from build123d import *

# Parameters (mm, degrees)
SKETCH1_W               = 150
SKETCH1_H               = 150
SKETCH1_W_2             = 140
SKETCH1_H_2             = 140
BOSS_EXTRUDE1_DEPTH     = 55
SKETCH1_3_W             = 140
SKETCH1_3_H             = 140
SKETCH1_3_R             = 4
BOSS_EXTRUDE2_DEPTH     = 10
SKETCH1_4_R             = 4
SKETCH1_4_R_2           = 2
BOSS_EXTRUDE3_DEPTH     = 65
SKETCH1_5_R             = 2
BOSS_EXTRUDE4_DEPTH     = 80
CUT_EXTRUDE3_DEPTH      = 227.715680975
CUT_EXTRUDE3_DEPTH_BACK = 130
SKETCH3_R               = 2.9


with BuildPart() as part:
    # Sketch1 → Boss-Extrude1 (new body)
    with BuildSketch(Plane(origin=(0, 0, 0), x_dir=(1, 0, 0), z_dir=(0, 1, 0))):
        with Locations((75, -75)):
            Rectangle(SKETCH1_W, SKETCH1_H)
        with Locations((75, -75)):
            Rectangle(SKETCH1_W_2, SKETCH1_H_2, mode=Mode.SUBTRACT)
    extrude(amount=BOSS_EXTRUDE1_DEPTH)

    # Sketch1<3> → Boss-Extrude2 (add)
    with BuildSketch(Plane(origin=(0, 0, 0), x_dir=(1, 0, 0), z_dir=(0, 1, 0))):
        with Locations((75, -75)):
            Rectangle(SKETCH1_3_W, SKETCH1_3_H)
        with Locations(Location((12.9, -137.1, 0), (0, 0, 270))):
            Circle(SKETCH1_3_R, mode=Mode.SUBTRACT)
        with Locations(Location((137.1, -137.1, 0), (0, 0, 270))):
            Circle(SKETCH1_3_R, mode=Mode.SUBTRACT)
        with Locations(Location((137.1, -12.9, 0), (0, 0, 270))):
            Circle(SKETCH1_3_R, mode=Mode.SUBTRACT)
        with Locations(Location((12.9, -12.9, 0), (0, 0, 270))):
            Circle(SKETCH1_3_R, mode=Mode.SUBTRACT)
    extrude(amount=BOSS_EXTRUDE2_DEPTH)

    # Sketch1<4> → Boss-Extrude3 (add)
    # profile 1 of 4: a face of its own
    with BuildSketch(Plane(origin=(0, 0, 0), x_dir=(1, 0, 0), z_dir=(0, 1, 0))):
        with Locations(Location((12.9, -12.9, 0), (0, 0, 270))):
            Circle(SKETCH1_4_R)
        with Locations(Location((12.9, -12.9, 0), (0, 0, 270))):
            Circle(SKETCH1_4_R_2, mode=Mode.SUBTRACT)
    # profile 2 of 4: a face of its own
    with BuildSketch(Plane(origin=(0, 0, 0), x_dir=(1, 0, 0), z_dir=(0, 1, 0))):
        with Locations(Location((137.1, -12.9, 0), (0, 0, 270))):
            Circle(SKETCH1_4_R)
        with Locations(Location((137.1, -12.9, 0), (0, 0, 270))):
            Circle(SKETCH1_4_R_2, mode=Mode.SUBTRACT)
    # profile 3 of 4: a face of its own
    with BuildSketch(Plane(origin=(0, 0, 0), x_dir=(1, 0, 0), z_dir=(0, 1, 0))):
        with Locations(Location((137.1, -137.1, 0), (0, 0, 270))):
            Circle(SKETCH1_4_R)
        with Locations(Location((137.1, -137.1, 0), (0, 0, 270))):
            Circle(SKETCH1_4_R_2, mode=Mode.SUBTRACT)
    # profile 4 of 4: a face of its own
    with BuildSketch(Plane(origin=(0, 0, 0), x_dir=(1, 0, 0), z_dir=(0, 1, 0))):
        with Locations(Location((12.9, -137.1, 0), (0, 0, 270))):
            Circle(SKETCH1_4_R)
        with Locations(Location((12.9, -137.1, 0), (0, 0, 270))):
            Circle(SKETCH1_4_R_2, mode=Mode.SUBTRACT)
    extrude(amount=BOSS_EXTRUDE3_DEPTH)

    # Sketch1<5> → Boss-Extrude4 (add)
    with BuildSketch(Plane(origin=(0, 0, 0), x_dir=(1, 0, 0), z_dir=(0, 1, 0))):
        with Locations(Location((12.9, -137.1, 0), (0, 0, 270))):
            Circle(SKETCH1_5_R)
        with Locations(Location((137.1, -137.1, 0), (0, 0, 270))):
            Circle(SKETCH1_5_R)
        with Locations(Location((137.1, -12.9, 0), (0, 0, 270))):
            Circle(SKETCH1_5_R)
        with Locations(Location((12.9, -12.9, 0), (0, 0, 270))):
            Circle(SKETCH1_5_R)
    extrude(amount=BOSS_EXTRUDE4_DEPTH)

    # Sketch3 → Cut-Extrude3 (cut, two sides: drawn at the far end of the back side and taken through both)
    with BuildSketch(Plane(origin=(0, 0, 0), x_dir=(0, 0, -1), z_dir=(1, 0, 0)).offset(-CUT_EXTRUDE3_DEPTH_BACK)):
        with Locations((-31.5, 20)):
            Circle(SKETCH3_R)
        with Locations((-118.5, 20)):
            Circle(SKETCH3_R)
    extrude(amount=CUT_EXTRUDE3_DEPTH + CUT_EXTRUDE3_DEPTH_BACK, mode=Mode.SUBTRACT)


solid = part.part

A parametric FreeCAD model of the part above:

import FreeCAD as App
import Part
import Sketcher

doc = App.newDocument("Part")
body = doc.addObject("PartDesign::Body", "Body")

# Sketch on XZ plane
sketch1 = doc.addObject("Sketcher::SketchObject", "Sketch")
body.addObject(sketch1)
sketch1.AttachmentSupport = (doc.XZ_Plane, [""])
sketch1.MapMode = "FlatFace"
sketch1.addGeometry(Part.LineSegment(App.Vector(0, 0, 0), App.Vector(0, 150, 0)), False)
sketch1.addGeometry(Part.LineSegment(App.Vector(0, 150, 0), App.Vector(150, 150, 0)), False)
sketch1.addGeometry(Part.LineSegment(App.Vector(150, 150, 0), App.Vector(150, 0, 0)), False)
sketch1.addGeometry(Part.LineSegment(App.Vector(150, 0, 0), App.Vector(0, 0, 0)), False)
sketch1.addGeometry(Part.LineSegment(App.Vector(145, 145, 0), App.Vector(5, 145, 0)), False)
sketch1.addGeometry(Part.LineSegment(App.Vector(5, 145, 0), App.Vector(5, 5, 0)), False)
sketch1.addGeometry(Part.LineSegment(App.Vector(5, 5, 0), App.Vector(145, 5, 0)), False)
sketch1.addGeometry(Part.LineSegment(App.Vector(145, 5, 0), App.Vector(145, 145, 0)), False)
sketch1.addConstraint(Sketcher.Constraint("Coincident", 0, 2, 1, 1))
sketch1.addConstraint(Sketcher.Constraint("Coincident", 1, 2, 2, 1))
sketch1.addConstraint(Sketcher.Constraint("Coincident", 2, 2, 3, 1))
sketch1.addConstraint(Sketcher.Constraint("Coincident", 3, 2, 0, 1))
sketch1.addConstraint(Sketcher.Constraint("Coincident", 4, 2, 5, 1))
sketch1.addConstraint(Sketcher.Constraint("Coincident", 5, 2, 6, 1))
sketch1.addConstraint(Sketcher.Constraint("Coincident", 6, 2, 7, 1))
sketch1.addConstraint(Sketcher.Constraint("Coincident", 7, 2, 4, 1))
sketch1.addConstraint(Sketcher.Constraint("Vertical", 0))
sketch1.addConstraint(Sketcher.Constraint("Horizontal", 1))
sketch1.addConstraint(Sketcher.Constraint("Vertical", 2))
sketch1.addConstraint(Sketcher.Constraint("Horizontal", 3))
sketch1.addConstraint(Sketcher.Constraint("Horizontal", 4))
sketch1.addConstraint(Sketcher.Constraint("Vertical", 5))
sketch1.addConstraint(Sketcher.Constraint("Horizontal", 6))
sketch1.addConstraint(Sketcher.Constraint("Vertical", 7))
sketch1.addConstraint(Sketcher.Constraint("Coincident", 3, 2, -1, 1))
sketch1.addConstraint(Sketcher.Constraint("Equal", 3, 0))
sketch1.addConstraint(Sketcher.Constraint("Equal", 6, 5))
sketch1.addConstraint(Sketcher.Constraint("DistanceX", 1, 1, 1, 2, 150.0))
sketch1.addConstraint(Sketcher.Constraint("DistanceX", 4, 2, 4, 1, 140.0))
sketch1.addConstraint(Sketcher.Constraint("DistanceX", -1, 1, 4, 2, 5.0))
sketch1.addConstraint(Sketcher.Constraint("DistanceY", -1, 1, 4, 2, 145.0))
pad1 = doc.addObject("PartDesign::Pad", "Pad")
body.addObject(pad1)
pad1.Profile = sketch1
pad1.Length = 55
pad1.Reversed = True

# Sketch on XZ plane
sketch2 = doc.addObject("Sketcher::SketchObject", "Sketch001")
body.addObject(sketch2)
sketch2.AttachmentSupport = (doc.XZ_Plane, [""])
sketch2.MapMode = "FlatFace"
sketch2.addGeometry(Part.LineSegment(App.Vector(5, 5, 0), App.Vector(5, 145, 0)), False)
sketch2.addGeometry(Part.LineSegment(App.Vector(5, 145, 0), App.Vector(145, 145, 0)), False)
sketch2.addGeometry(Part.LineSegment(App.Vector(145, 145, 0), App.Vector(145, 5, 0)), False)
sketch2.addGeometry(Part.LineSegment(App.Vector(145, 5, 0), App.Vector(5, 5, 0)), False)
sketch2.addGeometry(Part.Circle(App.Vector(12.9, 137.1, 0), App.Vector(0, 0, 1), 4), False)
sketch2.addGeometry(Part.Circle(App.Vector(137.1, 137.1, 0), App.Vector(0, 0, 1), 4), False)
sketch2.addGeometry(Part.Circle(App.Vector(12.9, 12.9, 0), App.Vector(0, 0, 1), 4), False)
sketch2.addGeometry(Part.Circle(App.Vector(137.1, 12.9, 0), App.Vector(0, 0, 1), 4), False)
sketch2.addConstraint(Sketcher.Constraint("Coincident", 0, 2, 1, 1))
sketch2.addConstraint(Sketcher.Constraint("Coincident", 1, 2, 2, 1))
sketch2.addConstraint(Sketcher.Constraint("Coincident", 2, 2, 3, 1))
sketch2.addConstraint(Sketcher.Constraint("Coincident", 3, 2, 0, 1))
sketch2.addConstraint(Sketcher.Constraint("Vertical", 0))
sketch2.addConstraint(Sketcher.Constraint("Horizontal", 1))
sketch2.addConstraint(Sketcher.Constraint("Vertical", 2))
sketch2.addConstraint(Sketcher.Constraint("Horizontal", 3))
sketch2.addConstraint(Sketcher.Constraint("Equal", 4, 5))
sketch2.addConstraint(Sketcher.Constraint("Equal", 5, 6))
sketch2.addConstraint(Sketcher.Constraint("Equal", 6, 7))
sketch2.addConstraint(Sketcher.Constraint("Horizontal", 4, 3, 5, 3))
sketch2.addConstraint(Sketcher.Constraint("Horizontal", 6, 3, 7, 3))
sketch2.addConstraint(Sketcher.Constraint("Vertical", 4, 3, 6, 3))
sketch2.addConstraint(Sketcher.Constraint("Vertical", 5, 3, 7, 3))
sketch2.addConstraint(Sketcher.Constraint("Equal", 3, 0))
sketch2.addConstraint(Sketcher.Constraint("Diameter", 4, 8.0))
sketch2.addConstraint(Sketcher.Constraint("DistanceX", 1, 1, 1, 2, 140.0))
sketch2.addConstraint(Sketcher.Constraint("DistanceX", -1, 1, 0, 2, 5.0))
sketch2.addConstraint(Sketcher.Constraint("DistanceY", -1, 1, 0, 2, 145.0))
sketch2.addConstraint(Sketcher.Constraint("DistanceX", -1, 1, 4, 3, 12.9))
sketch2.addConstraint(Sketcher.Constraint("DistanceY", -1, 1, 4, 3, 137.1))
sketch2.addConstraint(Sketcher.Constraint("DistanceX", -1, 1, 5, 3, 137.1))
sketch2.addConstraint(Sketcher.Constraint("DistanceY", -1, 1, 6, 3, 12.9))
pad2 = doc.addObject("PartDesign::Pad", "Pad001")
body.addObject(pad2)
pad2.Profile = sketch2
pad2.Length = 10
pad2.Reversed = True

# Sketch on XZ plane
sketch3 = doc.addObject("Sketcher::SketchObject", "Sketch002")
body.addObject(sketch3)
sketch3.AttachmentSupport = (doc.XZ_Plane, [""])
sketch3.MapMode = "FlatFace"
sketch3.addGeometry(Part.Circle(App.Vector(12.9, 12.9, 0), App.Vector(0, 0, 1), 4), False)
sketch3.addGeometry(Part.Circle(App.Vector(12.9, 12.9, 0), App.Vector(0, 0, 1), 2), False)
sketch3.addGeometry(Part.Circle(App.Vector(137.1, 12.9, 0), App.Vector(0, 0, 1), 4), False)
sketch3.addGeometry(Part.Circle(App.Vector(137.1, 12.9, 0), App.Vector(0, 0, 1), 2), False)
sketch3.addGeometry(Part.Circle(App.Vector(137.1, 137.1, 0), App.Vector(0, 0, 1), 4), False)
sketch3.addGeometry(Part.Circle(App.Vector(137.1, 137.1, 0), App.Vector(0, 0, 1), 2), False)
sketch3.addGeometry(Part.Circle(App.Vector(12.9, 137.1, 0), App.Vector(0, 0, 1), 4), False)
sketch3.addGeometry(Part.Circle(App.Vector(12.9, 137.1, 0), App.Vector(0, 0, 1), 2), False)
sketch3.addConstraint(Sketcher.Constraint("Coincident", 1, 3, 0, 3))
sketch3.addConstraint(Sketcher.Constraint("Coincident", 3, 3, 2, 3))
sketch3.addConstraint(Sketcher.Constraint("Coincident", 5, 3, 4, 3))
sketch3.addConstraint(Sketcher.Constraint("Coincident", 7, 3, 6, 3))
sketch3.addConstraint(Sketcher.Constraint("Equal", 0, 2))
sketch3.addConstraint(Sketcher.Constraint("Equal", 1, 3))
sketch3.addConstraint(Sketcher.Constraint("Equal", 2, 4))
sketch3.addConstraint(Sketcher.Constraint("Equal", 3, 5))
sketch3.addConstraint(Sketcher.Constraint("Equal", 4, 6))
sketch3.addConstraint(Sketcher.Constraint("Equal", 5, 7))
sketch3.addConstraint(Sketcher.Constraint("Horizontal", 1, 3, 2, 3))
sketch3.addConstraint(Sketcher.Constraint("Horizontal", 5, 3, 6, 3))
sketch3.addConstraint(Sketcher.Constraint("Vertical", 3, 3, 4, 3))
sketch3.addConstraint(Sketcher.Constraint("Vertical", 1, 3, 6, 3))
sketch3.addConstraint(Sketcher.Constraint("Diameter", 0, 8.0))
sketch3.addConstraint(Sketcher.Constraint("Diameter", 1, 4.0))
sketch3.addConstraint(Sketcher.Constraint("DistanceX", -1, 1, 0, 3, 12.9))
sketch3.addConstraint(Sketcher.Constraint("DistanceY", -1, 1, 0, 3, 12.9))
sketch3.addConstraint(Sketcher.Constraint("DistanceX", -1, 1, 2, 3, 137.1))
sketch3.addConstraint(Sketcher.Constraint("DistanceY", -1, 1, 4, 3, 137.1))
pad3 = doc.addObject("PartDesign::Pad", "Pad002")
body.addObject(pad3)
pad3.Profile = sketch3
pad3.Length = 65
pad3.Reversed = True

# Sketch on XZ plane
sketch4 = doc.addObject("Sketcher::SketchObject", "Sketch003")
body.addObject(sketch4)
sketch4.AttachmentSupport = (doc.XZ_Plane, [""])
sketch4.MapMode = "FlatFace"
sketch4.addGeometry(Part.Circle(App.Vector(12.9, 137.1, 0), App.Vector(0, 0, 1), 2), False)
sketch4.addGeometry(Part.Circle(App.Vector(137.1, 137.1, 0), App.Vector(0, 0, 1), 2), False)
sketch4.addGeometry(Part.Circle(App.Vector(137.1, 12.9, 0), App.Vector(0, 0, 1), 2), False)
sketch4.addGeometry(Part.Circle(App.Vector(12.9, 12.9, 0), App.Vector(0, 0, 1), 2), False)
sketch4.addConstraint(Sketcher.Constraint("Equal", 0, 1))
sketch4.addConstraint(Sketcher.Constraint("Equal", 1, 2))
sketch4.addConstraint(Sketcher.Constraint("Equal", 2, 3))
sketch4.addConstraint(Sketcher.Constraint("Horizontal", 0, 3, 1, 3))
sketch4.addConstraint(Sketcher.Constraint("Horizontal", 2, 3, 3, 3))
sketch4.addConstraint(Sketcher.Constraint("Vertical", 1, 3, 2, 3))
sketch4.addConstraint(Sketcher.Constraint("Vertical", 0, 3, 3, 3))
sketch4.addConstraint(Sketcher.Constraint("Diameter", 0, 4.0))
sketch4.addConstraint(Sketcher.Constraint("DistanceX", -1, 1, 0, 3, 12.9))
sketch4.addConstraint(Sketcher.Constraint("DistanceY", -1, 1, 0, 3, 137.1))
sketch4.addConstraint(Sketcher.Constraint("DistanceX", -1, 1, 1, 3, 137.1))
sketch4.addConstraint(Sketcher.Constraint("DistanceY", -1, 1, 2, 3, 12.9))
pad4 = doc.addObject("PartDesign::Pad", "Pad003")
body.addObject(pad4)
pad4.Profile = sketch4
pad4.Length = 80
pad4.Reversed = True

# Sketch on YZ plane
sketch5 = doc.addObject("Sketcher::SketchObject", "Sketch004")
body.addObject(sketch5)
sketch5.AttachmentSupport = (doc.YZ_Plane, [""])
sketch5.MapMode = "FlatFace"
sketch5.addGeometry(Part.Circle(App.Vector(20, 31.5, 0), App.Vector(0, 0, 1), 2.9), False)
sketch5.addGeometry(Part.Circle(App.Vector(20, 118.5, 0), App.Vector(0, 0, 1), 2.9), False)
sketch5.addConstraint(Sketcher.Constraint("Equal", 0, 1))
sketch5.addConstraint(Sketcher.Constraint("Vertical", 0, 3, 1, 3))
sketch5.addConstraint(Sketcher.Constraint("Diameter", 0, 5.8))
sketch5.addConstraint(Sketcher.Constraint("DistanceX", -1, 1, 0, 3, 20.0))
sketch5.addConstraint(Sketcher.Constraint("DistanceY", 0, 3, 1, 3, 87.0))
sketch5.addConstraint(Sketcher.Constraint("DistanceY", -1, 1, 0, 3, 31.5))
pocket1 = doc.addObject("PartDesign::Pocket", "Pocket")
body.addObject(pocket1)
pocket1.Profile = sketch5
pocket1.Type = "ThroughAll"
pocket1.Midplane = True

doc.recompute()
